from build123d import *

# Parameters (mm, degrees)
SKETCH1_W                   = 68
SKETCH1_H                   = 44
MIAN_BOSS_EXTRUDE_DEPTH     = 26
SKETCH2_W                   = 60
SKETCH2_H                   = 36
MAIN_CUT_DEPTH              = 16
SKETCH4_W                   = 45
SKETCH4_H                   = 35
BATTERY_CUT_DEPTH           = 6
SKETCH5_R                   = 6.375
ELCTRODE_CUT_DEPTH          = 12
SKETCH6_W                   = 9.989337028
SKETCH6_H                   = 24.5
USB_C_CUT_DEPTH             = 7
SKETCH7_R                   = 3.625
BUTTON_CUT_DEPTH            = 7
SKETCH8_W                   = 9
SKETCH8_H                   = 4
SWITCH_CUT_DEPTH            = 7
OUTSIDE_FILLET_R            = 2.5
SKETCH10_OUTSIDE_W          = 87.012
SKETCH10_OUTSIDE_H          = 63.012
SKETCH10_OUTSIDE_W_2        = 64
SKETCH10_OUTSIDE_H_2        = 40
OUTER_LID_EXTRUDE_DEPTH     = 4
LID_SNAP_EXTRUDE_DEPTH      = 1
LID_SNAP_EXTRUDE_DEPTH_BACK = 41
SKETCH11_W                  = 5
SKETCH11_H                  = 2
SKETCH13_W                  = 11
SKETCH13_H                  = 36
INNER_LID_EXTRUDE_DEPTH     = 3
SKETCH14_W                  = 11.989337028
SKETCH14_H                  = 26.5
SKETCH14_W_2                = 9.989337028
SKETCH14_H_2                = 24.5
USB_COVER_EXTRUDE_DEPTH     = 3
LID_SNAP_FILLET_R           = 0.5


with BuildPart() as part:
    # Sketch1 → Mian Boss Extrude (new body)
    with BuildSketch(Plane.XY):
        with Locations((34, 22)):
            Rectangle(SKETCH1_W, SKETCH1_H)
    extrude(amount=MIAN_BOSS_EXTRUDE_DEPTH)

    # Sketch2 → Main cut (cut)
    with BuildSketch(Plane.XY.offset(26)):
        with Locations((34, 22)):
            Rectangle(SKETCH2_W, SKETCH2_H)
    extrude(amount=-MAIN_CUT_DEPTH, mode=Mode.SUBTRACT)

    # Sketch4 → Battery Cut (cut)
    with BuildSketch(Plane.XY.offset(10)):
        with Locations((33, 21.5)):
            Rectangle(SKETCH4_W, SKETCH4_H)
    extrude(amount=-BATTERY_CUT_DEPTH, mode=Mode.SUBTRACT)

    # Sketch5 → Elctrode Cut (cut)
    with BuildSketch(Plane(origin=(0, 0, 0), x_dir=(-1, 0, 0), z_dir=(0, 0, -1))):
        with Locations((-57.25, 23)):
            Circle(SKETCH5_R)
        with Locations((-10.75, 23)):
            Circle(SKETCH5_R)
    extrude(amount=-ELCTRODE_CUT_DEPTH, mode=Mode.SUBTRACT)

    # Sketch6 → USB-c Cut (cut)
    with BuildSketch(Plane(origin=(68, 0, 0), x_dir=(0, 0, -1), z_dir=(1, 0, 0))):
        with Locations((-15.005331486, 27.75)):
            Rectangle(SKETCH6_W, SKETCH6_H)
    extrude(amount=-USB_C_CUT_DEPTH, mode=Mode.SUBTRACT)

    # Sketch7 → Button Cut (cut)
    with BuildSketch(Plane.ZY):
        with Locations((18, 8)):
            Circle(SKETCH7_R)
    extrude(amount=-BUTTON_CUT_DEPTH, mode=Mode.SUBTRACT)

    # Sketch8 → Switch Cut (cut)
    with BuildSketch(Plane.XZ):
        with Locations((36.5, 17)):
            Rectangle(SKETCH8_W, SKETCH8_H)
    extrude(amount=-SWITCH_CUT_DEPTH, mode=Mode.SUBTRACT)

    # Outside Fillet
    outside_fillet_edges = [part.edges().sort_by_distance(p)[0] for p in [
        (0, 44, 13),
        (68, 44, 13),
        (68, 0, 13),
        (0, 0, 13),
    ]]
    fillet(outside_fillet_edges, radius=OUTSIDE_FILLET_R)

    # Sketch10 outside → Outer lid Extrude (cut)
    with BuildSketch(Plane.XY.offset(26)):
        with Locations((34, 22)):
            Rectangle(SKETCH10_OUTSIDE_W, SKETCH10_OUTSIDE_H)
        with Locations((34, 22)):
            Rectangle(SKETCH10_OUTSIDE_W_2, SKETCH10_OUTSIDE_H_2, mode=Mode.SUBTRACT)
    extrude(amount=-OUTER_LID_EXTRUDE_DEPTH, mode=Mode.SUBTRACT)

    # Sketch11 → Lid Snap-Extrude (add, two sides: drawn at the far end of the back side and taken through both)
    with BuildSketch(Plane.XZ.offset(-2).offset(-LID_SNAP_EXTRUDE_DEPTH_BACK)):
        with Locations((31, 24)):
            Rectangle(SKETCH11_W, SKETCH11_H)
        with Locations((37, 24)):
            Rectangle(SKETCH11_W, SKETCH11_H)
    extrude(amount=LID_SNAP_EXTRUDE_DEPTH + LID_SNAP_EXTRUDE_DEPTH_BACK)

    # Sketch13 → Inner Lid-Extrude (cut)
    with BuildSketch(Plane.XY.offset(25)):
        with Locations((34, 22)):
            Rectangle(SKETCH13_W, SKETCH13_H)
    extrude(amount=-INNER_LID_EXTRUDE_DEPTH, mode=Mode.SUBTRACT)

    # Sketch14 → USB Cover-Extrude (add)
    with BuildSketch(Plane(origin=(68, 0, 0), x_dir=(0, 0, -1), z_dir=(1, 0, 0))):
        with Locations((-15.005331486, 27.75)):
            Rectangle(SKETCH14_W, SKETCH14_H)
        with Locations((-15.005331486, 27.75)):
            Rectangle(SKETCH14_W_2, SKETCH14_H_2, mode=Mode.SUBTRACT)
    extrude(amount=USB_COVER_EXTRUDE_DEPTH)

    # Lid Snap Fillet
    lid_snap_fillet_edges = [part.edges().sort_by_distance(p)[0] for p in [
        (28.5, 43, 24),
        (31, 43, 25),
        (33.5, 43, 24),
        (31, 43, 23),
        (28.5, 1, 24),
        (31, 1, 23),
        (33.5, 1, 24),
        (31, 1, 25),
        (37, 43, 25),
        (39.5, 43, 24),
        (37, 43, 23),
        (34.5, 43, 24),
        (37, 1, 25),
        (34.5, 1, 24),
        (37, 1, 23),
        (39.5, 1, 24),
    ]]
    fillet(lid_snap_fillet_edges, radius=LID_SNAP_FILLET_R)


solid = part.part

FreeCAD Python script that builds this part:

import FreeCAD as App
import Part
import Sketcher

V = App.Vector


def edges_at(feature, points):
    """Names of the edges that pass closest to the given points."""
    edges = feature.Shape.Edges
    near = lambda p: min(range(len(edges)), key=lambda i: edges[i].distToShape(Part.Vertex(*p))[0])
    return sorted({f"Edge{near(p) + 1}" for p in points})

doc = App.newDocument("Part")
params = doc.addObject("Spreadsheet::Sheet", "Params")
for row, (alias, value) in enumerate([
    ("sketch1_width", "68 mm"),
    ("sketch1_height", "44 mm"),
    ("pad1_length", "26 mm"),
    ("sketch2_width", "60 mm"),
    ("sketch2_height", "36 mm"),
    ("pocket1_length", "16 mm"),
    ("sketch3_width", "45 mm"),
    ("sketch3_height", "35 mm"),
    ("pocket2_length", "6 mm"),
    ("sketch4_diameter", "12.75 mm"),
    ("pocket3_length", "12 mm"),
    ("sketch5_width", "24.5 mm"),
    ("pocket4_length", "7 mm"),
    ("sketch6_diameter", "7.25 mm"),
    ("pocket5_length", "7 mm"),
    ("sketch7_width", "9 mm"),
    ("sketch7_height", "4 mm"),
    ("pocket6_length", "7 mm"),
    ("fillet_radius", "2.5 mm"),
    ("sketch8_width", "64 mm"),
    ("sketch8_height", "40 mm"),
    ("pocket7_length", "4 mm"),
    ("sketch9_width", "5 mm"),
    ("sketch9_height", "2 mm"),
    ("pad2_length", "1 mm"),
    ("pad2_length2", "41 mm"),
    ("sketch10_width", "11 mm"),
    ("sketch10_height", "36 mm"),
    ("pocket8_length", "3 mm"),
    ("sketch11_width", "26.5 mm"),
    ("sketch11_width2", "24.5 mm"),
    ("pad3_length", "3 mm"),
    ("fillet2_radius", "0.5 mm"),
], start=1):
    params.set(f"A{row}", alias)
    params.set(f"B{row}", "=" + value)
    params.setAlias(f"B{row}", alias)

body = doc.addObject("PartDesign::Body", "Body")

# Sketch on XY plane
sketch1 = doc.addObject("Sketcher::SketchObject", "Sketch")
body.addObject(sketch1)
sketch1.AttachmentSupport = (doc.XY_Plane, [""])
sketch1.MapMode = "FlatFace"
sketch1.addGeometry(Part.LineSegment(V(0, 44, 0), V(0, 0, 0)), False)
sketch1.addGeometry(Part.LineSegment(V(0, 0, 0), V(68, 0, 0)), False)
sketch1.addGeometry(Part.LineSegment(V(68, 0, 0), V(68, 44, 0)), False)
sketch1.addGeometry(Part.LineSegment(V(68, 44, 0), V(0, 44, 0)), False)
sketch1.addConstraint(Sketcher.Constraint("Coincident", 0, 2, 1, 1))
sketch1.addConstraint(Sketcher.Constraint("Coincident", 1, 2, 2, 1))
sketch1.addConstraint(Sketcher.Constraint("Coincident", 2, 2, 3, 1))
sketch1.addConstraint(Sketcher.Constraint("Coincident", 3, 2, 0, 1))
sketch1.addConstraint(Sketcher.Constraint("Vertical", 0))
sketch1.addConstraint(Sketcher.Constraint("Horizontal", 1))
sketch1.addConstraint(Sketcher.Constraint("Vertical", 2))
sketch1.addConstraint(Sketcher.Constraint("Horizontal", 3))
sketch1.addConstraint(Sketcher.Constraint("Coincident", 0, 2, -1, 1))
sketch1.addConstraint(Sketcher.Constraint("DistanceX", 1, 1, 1, 2, 68.0))
sketch1.addConstraint(Sketcher.Constraint("DistanceY", 0, 2, 0, 1, 44.0))
sketch1.setExpression("Constraints[9]", "Params.sketch1_width")
sketch1.setExpression("Constraints[10]", "Params.sketch1_height")
pad1 = doc.addObject("PartDesign::Pad", "Pad")
body.addObject(pad1)
pad1.Profile = sketch1
pad1.setExpression("Length", "Params.pad1_length")

# Sketch on XY plane
sketch2 = doc.addObject("Sketcher::SketchObject", "Sketch001")
body.addObject(sketch2)
sketch2.AttachmentSupport = (doc.XY_Plane, [""])
sketch2.MapMode = "FlatFace"
sketch2.AttachmentOffset = App.Placement(V(0, 0, 26), App.Rotation())
sketch2.addGeometry(Part.LineSegment(V(4, 40, 0), V(4, 4, 0)), False)
sketch2.addGeometry(Part.LineSegment(V(4, 4, 0), V(64, 4, 0)), False)
sketch2.addGeometry(Part.LineSegment(V(64, 4, 0), V(64, 40, 0)), False)
sketch2.addGeometry(Part.LineSegment(V(64, 40, 0), V(4, 40, 0)), False)
sketch2.addConstraint(Sketcher.Constraint("Coincident", 0, 2, 1, 1))
sketch2.addConstraint(Sketcher.Constraint("Coincident", 1, 2, 2, 1))
sketch2.addConstraint(Sketcher.Constraint("Coincident", 2, 2, 3, 1))
sketch2.addConstraint(Sketcher.Constraint("Coincident", 3, 2, 0, 1))
sketch2.addConstraint(Sketcher.Constraint("Vertical", 0))
sketch2.addConstraint(Sketcher.Constraint("Horizontal", 1))
sketch2.addConstraint(Sketcher.Constraint("Vertical", 2))
sketch2.addConstraint(Sketcher.Constraint("Horizontal", 3))
sketch2.addConstraint(Sketcher.Constraint("DistanceX", 1, 1, 1, 2, 60.0))
sketch2.addConstraint(Sketcher.Constraint("DistanceY", 0, 2, 0, 1, 36.0))
sketch2.addConstraint(Sketcher.Constraint("DistanceX", -1, 1, 0, 2, 4.0))
sketch2.addConstraint(Sketcher.Constraint("DistanceY", -1, 1, 0, 2, 4.0))
sketch2.setExpression("Constraints[8]", "Params.sketch2_width")
sketch2.setExpression("Constraints[9]", "Params.sketch2_height")
pocket1 = doc.addObject("PartDesign::Pocket", "Pocket")
body.addObject(pocket1)
pocket1.Profile = sketch2
pocket1.setExpression("Length", "Params.pocket1_length")

# Sketch on XY plane
sketch3 = doc.addObject("Sketcher::SketchObject", "Sketch002")
body.addObject(sketch3)
sketch3.AttachmentSupport = (doc.XY_Plane, [""])
sketch3.MapMode = "FlatFace"
sketch3.AttachmentOffset = App.Placement(V(0, 0, 10), App.Rotation())
sketch3.addGeometry(Part.LineSegment(V(10, 39, 0), V(10, 4, 0)), False)
sketch3.addGeometry(Part.LineSegment(V(10, 4, 0), V(56, 4, 0)), False)
sketch3.addGeometry(Part.LineSegment(V(56, 4, 0), V(56, 39, 0)), False)
sketch3.addGeometry(Part.LineSegment(V(56, 39, 0), V(10, 39, 0)), False)
sketch3.addConstraint(Sketcher.Constraint("Coincident", 0, 2, 1, 1))
sketch3.addConstraint(Sketcher.Constraint("Coincident", 1, 2, 2, 1))
sketch3.addConstraint(Sketcher.Constraint("Coincident", 2, 2, 3, 1))
sketch3.addConstraint(Sketcher.Constraint("Coincident", 3, 2, 0, 1))
sketch3.addConstraint(Sketcher.Constraint("Vertical", 0))
sketch3.addConstraint(Sketcher.Constraint("Horizontal", 1))
sketch3.addConstraint(Sketcher.Constraint("Vertical", 2))
sketch3.addConstraint(Sketcher.Constraint("Horizontal", 3))
sketch3.addConstraint(Sketcher.Constraint("DistanceX", 1, 1, 1, 2, 45.0))
sketch3.addConstraint(Sketcher.Constraint("DistanceY", 0, 2, 0, 1, 35.0))
sketch3.addConstraint(Sketcher.Constraint("DistanceY", -1, 1, 0, 2, 4.0))
sketch3.addConstraint(Sketcher.Constraint("DistanceX", -1, 1, 0, 2, 10.5))
sketch3.setExpression("Constraints[8]", "Params.sketch3_width")
sketch3.setExpression("Constraints[9]", "Params.sketch3_height")
pocket2 = doc.addObject("PartDesign::Pocket", "Pocket001")
body.addObject(pocket2)
pocket2.Profile = sketch3
pocket2.setExpression("Length", "Params.pocket2_length")

# Sketch on XY plane
sketch4 = doc.addObject("Sketcher::SketchObject", "Sketch003")
body.addObject(sketch4)
sketch4.AttachmentSupport = (doc.XY_Plane, [""])
sketch4.MapMode = "FlatFace"
sketch4.addGeometry(Part.Circle(V(57, 23, 0), V(0, 0, 1), 6), False)
sketch4.addGeometry(Part.Circle(V(11, 23, 0), V(0, 0, 1), 6), False)
sketch4.addConstraint(Sketcher.Constraint("Equal", 0, 1))
sketch4.addConstraint(Sketcher.Constraint("Horizontal", 0, 3, 1, 3))
sketch4.addConstraint(Sketcher.Constraint("Diameter", 0, 12.75))
sketch4.addConstraint(Sketcher.Constraint("DistanceY", -1, 1, 0, 3, 23.0))
sketch4.addConstraint(Sketcher.Constraint("DistanceX", 1, 3, 0, 3, 46.5))
sketch4.addConstraint(Sketcher.Constraint("DistanceX", -1, 1, 0, 3, 57.25))
sketch4.setExpression("Constraints[2]", "Params.sketch4_diameter")
pocket3 = doc.addObject("PartDesign::Pocket", "Pocket002")
body.addObject(pocket3)
pocket3.Profile = sketch4
pocket3.setExpression("Length", "Params.pocket3_length")
pocket3.Reversed = True

# Sketch on YZ plane
sketch5 = doc.addObject("Sketcher::SketchObject", "Sketch004")
body.addObject(sketch5)
sketch5.AttachmentSupport = (doc.YZ_Plane, [""])
sketch5.MapMode = "FlatFace"
sketch5.AttachmentOffset = App.Placement(V(0, 0, 68), App.Rotation())
sketch5.addGeometry(Part.LineSegment(V(40, 20, 0), V(16, 20, 0)), False)
sketch5.addGeometry(Part.LineSegment(V(16, 20, 0), V(16, 10, 0)), False)
sketch5.addGeometry(Part.LineSegment(V(16, 10, 0), V(40, 10, 0)), False)
sketch5.addGeometry(Part.LineSegment(V(40, 10, 0), V(40, 20, 0)), False)
sketch5.addConstraint(Sketcher.Constraint("Coincident", 0, 2, 1, 1))
sketch5.addConstraint(Sketcher.Constraint("Coincident", 1, 2, 2, 1))
sketch5.addConstraint(Sketcher.Constraint("Coincident", 2, 2, 3, 1))
sketch5.addConstraint(Sketcher.Constraint("Coincident", 3, 2, 0, 1))
sketch5.addConstraint(Sketcher.Constraint("Horizontal", 0))
sketch5.addConstraint(Sketcher.Constraint("Vertical", 1))
sketch5.addConstraint(Sketcher.Constraint("Horizontal", 2))
sketch5.addConstraint(Sketcher.Constraint("Vertical", 3))
sketch5.addConstraint(Sketcher.Constraint("DistanceX", 0, 2, 0, 1, 24.5))
sketch5.addConstraint(Sketcher.Constraint("DistanceY", -1, 1, 0, 2, 20.0))
sketch5.addConstraint(Sketcher.Constraint("DistanceX", -1, 1, 2, 2, 40.0))
sketch5.addConstraint(Sketcher.Constraint("DistanceY", 1, 2, 1, 1, 9.989337))
sketch5.setExpression("Constraints[8]", "Params.sketch5_width")
pocket4 = doc.addObject("PartDesign::Pocket", "Pocket003")
body.addObject(pocket4)
pocket4.Profile = sketch5
pocket4.setExpression("Length", "Params.pocket4_length")

# Sketch on YZ plane
sketch6 = doc.addObject("Sketcher::SketchObject", "Sketch005")
body.addObject(sketch6)
sketch6.AttachmentSupport = (doc.YZ_Plane, [""])
sketch6.MapMode = "FlatFace"
sketch6.addGeometry(Part.Circle(V(8, 18, 0), V(0, 0, 1), 3.6), False)
sketch6.addConstraint(Sketcher.Constraint("Diameter", 0, 7.25))
sketch6.addConstraint(Sketcher.Constraint("DistanceX", -1, 1, 0, 3, 8.0))
sketch6.addConstraint(Sketcher.Constraint("DistanceY", -1, 1, 0, 3, 18.0))
sketch6.setExpression("Constraints[0]", "Params.sketch6_diameter")
pocket5 = doc.addObject("PartDesign::Pocket", "Pocket004")
body.addObject(pocket5)
pocket5.Profile = sketch6
pocket5.setExpression("Length", "Params.pocket5_length")
pocket5.Reversed = True

# Sketch on XZ plane
sketch7 = doc.addObject("Sketcher::SketchObject", "Sketch006")
body.addObject(sketch7)
sketch7.AttachmentSupport = (doc.XZ_Plane, [""])
sketch7.MapMode = "FlatFace"
sketch7.addGeometry(Part.LineSegment(V(32, 19, 0), V(32, 15, 0)), False)
sketch7.addGeometry(Part.LineSegment(V(32, 15, 0), V(41, 15, 0)), False)
sketch7.addGeometry(Part.LineSegment(V(41, 15, 0), V(41, 19, 0)), False)
sketch7.addGeometry(Part.LineSegment(V(41, 19, 0), V(32, 19, 0)), False)
sketch7.addConstraint(Sketcher.Constraint("Coincident", 0, 2, 1, 1))
sketch7.addConstraint(Sketcher.Constraint("Coincident", 1, 2, 2, 1))
sketch7.addConstraint(Sketcher.Constraint("Coincident", 2, 2, 3, 1))
sketch7.addConstraint(Sketcher.Constraint("Coincident", 3, 2, 0, 1))
sketch7.addConstraint(Sketcher.Constraint("Vertical", 0))
sketch7.addConstraint(Sketcher.Constraint("Horizontal", 1))
sketch7.addConstraint(Sketcher.Constraint("Vertical", 2))
sketch7.addConstraint(Sketcher.Constraint("Horizontal", 3))
sketch7.addConstraint(Sketcher.Constraint("DistanceX", 1, 1, 1, 2, 9.0))
sketch7.addConstraint(Sketcher.Constraint("DistanceY", 0, 2, 0, 1, 4.0))
sketch7.addConstraint(Sketcher.Constraint("DistanceX", -1, 1, 0, 2, 32.0))
sketch7.addConstraint(Sketcher.Constraint("DistanceY", -1, 1, 0, 2, 15.0))
sketch7.setExpression("Constraints[8]", "Params.sketch7_width")
sketch7.setExpression("Constraints[9]", "Params.sketch7_height")
pocket6 = doc.addObject("PartDesign::Pocket", "Pocket005")
body.addObject(pocket6)
pocket6.Profile = sketch7
pocket6.setExpression("Length", "Params.pocket6_length")
doc.recompute()

fillet = doc.addObject("PartDesign::Fillet", "Fillet")
body.addObject(fillet)
fillet.Base = (pocket6, edges_at(pocket6, [
    (0, 44, 13),
    (68, 44, 13),
    (68, 0, 13),
    (0, 0, 13),
]))
fillet.setExpression("Radius", "Params.fillet_radius")

# Sketch on XY plane
sketch8 = doc.addObject("Sketcher::SketchObject", "Sketch007")
body.addObject(sketch8)
sketch8.AttachmentSupport = (doc.XY_Plane, [""])
sketch8.MapMode = "FlatFace"
sketch8.AttachmentOffset = App.Placement(V(0, 0, 26), App.Rotation())
sketch8.addGeometry(Part.LineSegment(V(-10, 54, 0), V(-10, -10, 0)), False)
sketch8.addGeometry(Part.LineSegment(V(-10, -10, 0), V(78, -10, 0)), False)
sketch8.addGeometry(Part.LineSegment(V(78, -10, 0), V(78, 54, 0)), False)
sketch8.addGeometry(Part.LineSegment(V(78, 54, 0), V(-10, 54, 0)), False)
sketch8.addGeometry(Part.LineSegment(V(66, 2, 0), V(2, 2, 0)), False)
sketch8.addGeometry(Part.LineSegment(V(2, 2, 0), V(2, 42, 0)), False)
sketch8.addGeometry(Part.LineSegment(V(2, 42, 0), V(66, 42, 0)), False)
sketch8.addGeometry(Part.LineSegment(V(66, 42, 0), V(66, 2, 0)), False)
sketch8.addConstraint(Sketcher.Constraint("Coincident", 0, 2, 1, 1))
sketch8.addConstraint(Sketcher.Constraint("Coincident", 1, 2, 2, 1))
sketch8.addConstraint(Sketcher.Constraint("Coincident", 2, 2, 3, 1))
sketch8.addConstraint(Sketcher.Constraint("Coincident", 3, 2, 0, 1))
sketch8.addConstraint(Sketcher.Constraint("Coincident", 4, 2, 5, 1))
sketch8.addConstraint(Sketcher.Constraint("Coincident", 5, 2, 6, 1))
sketch8.addConstraint(Sketcher.Constraint("Coincident", 6, 2, 7, 1))
sketch8.addConstraint(Sketcher.Constraint("Coincident", 7, 2, 4, 1))
sketch8.addConstraint(Sketcher.Constraint("Vertical", 0))
sketch8.addConstraint(Sketcher.Constraint("Horizontal", 1))
sketch8.addConstraint(Sketcher.Constraint("Vertical", 2))
sketch8.addConstraint(Sketcher.Constraint("Horizontal", 3))
sketch8.addConstraint(Sketcher.Constraint("Horizontal", 4))
sketch8.addConstraint(Sketcher.Constraint("Vertical", 5))
sketch8.addConstraint(Sketcher.Constraint("Horizontal", 6))
sketch8.addConstraint(Sketcher.Constraint("Vertical", 7))
sketch8.addConstraint(Sketcher.Constraint("DistanceX", 4, 2, 4, 1, 64.0))
sketch8.addConstraint(Sketcher.Constraint("DistanceY", 5, 1, 5, 2, 40.0))
sketch8.addConstraint(Sketcher.Constraint("DistanceX", -1, 1, 4, 2, 2.0))
sketch8.addConstraint(Sketcher.Constraint("DistanceY", -1, 1, 4, 2, 2.0))
sketch8.addConstraint(Sketcher.Constraint("DistanceX", 1, 1, 1, 2, 87.012))
sketch8.addConstraint(Sketcher.Constraint("DistanceY", 0, 2, 0, 1, 63.012))
sketch8.addConstraint(Sketcher.Constraint("DistanceX", 0, 2, -1, 1, 9.506))
sketch8.addConstraint(Sketcher.Constraint("DistanceY", 0, 2, -1, 1, 9.506))
sketch8.setExpression("Constraints[16]", "Params.sketch8_width")
sketch8.setExpression("Constraints[17]", "Params.sketch8_height")
pocket7 = doc.addObject("PartDesign::Pocket", "Pocket006")
body.addObject(pocket7)
pocket7.Profile = sketch8
pocket7.setExpression("Length", "Params.pocket7_length")

# Sketch on XZ plane
sketch9 = doc.addObject("Sketcher::SketchObject", "Sketch008")
body.addObject(sketch9)
sketch9.AttachmentSupport = (doc.XZ_Plane, [""])
sketch9.MapMode = "FlatFace"
sketch9.AttachmentOffset = App.Placement(V(0, 0, -2), App.Rotation())
sketch9.addGeometry(Part.LineSegment(V(28.5, 25, 0), V(28.5, 23, 0)), False)
sketch9.addGeometry(Part.LineSegment(V(28.5, 23, 0), V(33.5, 23, 0)), False)
sketch9.addGeometry(Part.LineSegment(V(33.5, 23, 0), V(33.5, 25, 0)), False)
sketch9.addGeometry(Part.LineSegment(V(33.5, 25, 0), V(28.5, 25, 0)), False)
sketch9.addGeometry(Part.LineSegment(V(34.5, 25, 0), V(34.5, 23, 0)), False)
sketch9.addGeometry(Part.LineSegment(V(34.5, 23, 0), V(39.5, 23, 0)), False)
sketch9.addGeometry(Part.LineSegment(V(39.5, 23, 0), V(39.5, 25, 0)), False)
sketch9.addGeometry(Part.LineSegment(V(39.5, 25, 0), V(34.5, 25, 0)), False)
sketch9.addConstraint(Sketcher.Constraint("Coincident", 0, 2, 1, 1))
sketch9.addConstraint(Sketcher.Constraint("Coincident", 1, 2, 2, 1))
sketch9.addConstraint(Sketcher.Constraint("Coincident", 2, 2, 3, 1))
sketch9.addConstraint(Sketcher.Constraint("Coincident", 3, 2, 0, 1))
sketch9.addConstraint(Sketcher.Constraint("Coincident", 4, 2, 5, 1))
sketch9.addConstraint(Sketcher.Constraint("Coincident", 5, 2, 6, 1))
sketch9.addConstraint(Sketcher.Constraint("Coincident", 6, 2, 7, 1))
sketch9.addConstraint(Sketcher.Constraint("Coincident", 7, 2, 4, 1))
sketch9.addConstraint(Sketcher.Constraint("Vertical", 0))
sketch9.addConstraint(Sketcher.Constraint("Horizontal", 1))
sketch9.addConstraint(Sketcher.Constraint("Vertical", 2))
sketch9.addConstraint(Sketcher.Constraint("Horizontal", 3))
sketch9.addConstraint(Sketcher.Constraint("Vertical", 4))
sketch9.addConstraint(Sketcher.Constraint("Horizontal", 5))
sketch9.addConstraint(Sketcher.Constraint("Vertical", 6))
sketch9.addConstraint(Sketcher.Constraint("Horizontal", 7))
sketch9.addConstraint(Sketcher.Constraint("Horizontal", 1, 2, 4, 2))
sketch9.addConstraint(Sketcher.Constraint("Horizontal", 3, 2, 6, 2))
sketch9.addConstraint(Sketcher.Constraint("Equal", 3, 5))
sketch9.addConstraint(Sketcher.Constraint("DistanceX", 1, 1, 1, 2, 5.0))
sketch9.addConstraint(Sketcher.Constraint("DistanceY", 0, 2, 0, 1, 2.0))
sketch9.addConstraint(Sketcher.Constraint("DistanceY", -1, 1, 0, 2, 23.0))
sketch9.addConstraint(Sketcher.Constraint("DistanceX", 1, 2, 4, 2, 1.0))
sketch9.addConstraint(Sketcher.Constraint("DistanceX", -1, 1, 0, 2, 28.5))
sketch9.setExpression("Constraints[19]", "Params.sketch9_width")
sketch9.setExpression("Constraints[20]", "Params.sketch9_height")
pad2 = doc.addObject("PartDesign::Pad", "Pad001")
body.addObject(pad2)
pad2.Profile = sketch9
pad2.Type = "TwoLengths"
pad2.setExpression("Length", "Params.pad2_length")
pad2.setExpression("Length2", "Params.pad2_length2")

# Sketch on XY plane
sketch10 = doc.addObject("Sketcher::SketchObject", "Sketch009")
body.addObject(sketch10)
sketch10.AttachmentSupport = (doc.XY_Plane, [""])
sketch10.MapMode = "FlatFace"
sketch10.AttachmentOffset = App.Placement(V(0, 0, 25), App.Rotation())
sketch10.addGeometry(Part.LineSegment(V(28, 40, 0), V(28, 4, 0)), False)
sketch10.addGeometry(Part.LineSegment(V(28, 4, 0), V(40, 4, 0)), False)
sketch10.addGeometry(Part.LineSegment(V(40, 4, 0), V(40, 40, 0)), False)
sketch10.addGeometry(Part.LineSegment(V(40, 40, 0), V(28, 40, 0)), False)
sketch10.addConstraint(Sketcher.Constraint("Coincident", 0, 2, 1, 1))
sketch10.addConstraint(Sketcher.Constraint("Coincident", 1, 2, 2, 1))
sketch10.addConstraint(Sketcher.Constraint("Coincident", 2, 2, 3, 1))
sketch10.addConstraint(Sketcher.Constraint("Coincident", 3, 2, 0, 1))
sketch10.addConstraint(Sketcher.Constraint("Vertical", 0))
sketch10.addConstraint(Sketcher.Constraint("Horizontal", 1))
sketch10.addConstraint(Sketcher.Constraint("Vertical", 2))
sketch10.addConstraint(Sketcher.Constraint("Horizontal", 3))
sketch10.addConstraint(Sketcher.Constraint("DistanceX", 1, 1, 1, 2, 11.0))
sketch10.addConstraint(Sketcher.Constraint("DistanceY", 0, 2, 0, 1, 36.0))
sketch10.addConstraint(Sketcher.Constraint("DistanceY", -1, 1, 0, 2, 4.0))
sketch10.addConstraint(Sketcher.Constraint("DistanceX", -1, 1, 0, 2, 28.5))
sketch10.setExpression("Constraints[8]", "Params.sketch10_width")
sketch10.setExpression("Constraints[9]", "Params.sketch10_height")
pocket8 = doc.addObject("PartDesign::Pocket", "Pocket007")
body.addObject(pocket8)
pocket8.Profile = sketch10
pocket8.setExpression("Length", "Params.pocket8_length")

# Sketch on YZ plane
sketch11 = doc.addObject("Sketcher::SketchObject", "Sketch010")
body.addObject(sketch11)
sketch11.AttachmentSupport = (doc.YZ_Plane, [""])
sketch11.MapMode = "FlatFace"
sketch11.AttachmentOffset = App.Placement(V(0, 0, 68), App.Rotation())
sketch11.addGeometry(Part.LineSegment(V(41, 21, 0), V(14, 21, 0)), False)
sketch11.addGeometry(Part.LineSegment(V(14, 21, 0), V(14, 9, 0)), False)
sketch11.addGeometry(Part.LineSegment(V(14, 9, 0), V(41, 9, 0)), False)
sketch11.addGeometry(Part.LineSegment(V(41, 9, 0), V(41, 21, 0)), False)
sketch11.addGeometry(Part.LineSegment(V(16, 10, 0), V(16, 20, 0)), False)
sketch11.addGeometry(Part.LineSegment(V(16, 20, 0), V(40, 20, 0)), False)
sketch11.addGeometry(Part.LineSegment(V(40, 20, 0), V(40, 10, 0)), False)
sketch11.addGeometry(Part.LineSegment(V(40, 10, 0), V(16, 10, 0)), False)
sketch11.addConstraint(Sketcher.Constraint("Coincident", 0, 2, 1, 1))
sketch11.addConstraint(Sketcher.Constraint("Coincident", 1, 2, 2, 1))
sketch11.addConstraint(Sketcher.Constraint("Coincident", 2, 2, 3, 1))
sketch11.addConstraint(Sketcher.Constraint("Coincident", 3, 2, 0, 1))
sketch11.addConstraint(Sketcher.Constraint("Coincident", 4, 2, 5, 1))
sketch11.addConstraint(Sketcher.Constraint("Coincident", 5, 2, 6, 1))
sketch11.addConstraint(Sketcher.Constraint("Coincident", 6, 2, 7, 1))
sketch11.addConstraint(Sketcher.Constraint("Coincident", 7, 2, 4, 1))
sketch11.addConstraint(Sketcher.Constraint("Horizontal", 0))
sketch11.addConstraint(Sketcher.Constraint("Vertical", 1))
sketch11.addConstraint(Sketcher.Constraint("Horizontal", 2))
sketch11.addConstraint(Sketcher.Constraint("Vertical", 3))
sketch11.addConstraint(Sketcher.Constraint("Vertical", 4))
sketch11.addConstraint(Sketcher.Constraint("Horizontal", 5))
sketch11.addConstraint(Sketcher.Constraint("Vertical", 6))
sketch11.addConstraint(Sketcher.Constraint("Horizontal", 7))
sketch11.addConstraint(Sketcher.Constraint("DistanceX", 0, 2, 0, 1, 26.5))
sketch11.addConstraint(Sketcher.Constraint("DistanceX", 5, 1, 5, 2, 24.5))
sketch11.addConstraint(Sketcher.Constraint("DistanceY", -1, 1, 0, 2, 21.0))
sketch11.addConstraint(Sketcher.Constraint("DistanceX", -1, 1, 2, 2, 41.0))
sketch11.addConstraint(Sketcher.Constraint("DistanceY", -1, 1, 4, 2, 20.0))
sketch11.addConstraint(Sketcher.Constraint("DistanceX", -1, 1, 5, 2, 40.0))
sketch11.addConstraint(Sketcher.Constraint("DistanceY", 2, 2, 6, 2, 1.0))
sketch11.addConstraint(Sketcher.Constraint("DistanceY", 1, 2, 1, 1, 11.989337))
sketch11.setExpression("Constraints[16]", "Params.sketch11_width")
sketch11.setExpression("Constraints[17]", "Params.sketch11_width2")
pad3 = doc.addObject("PartDesign::Pad", "Pad002")
body.addObject(pad3)
pad3.Profile = sketch11
pad3.setExpression("Length", "Params.pad3_length")
doc.recompute()

fillet2 = doc.addObject("PartDesign::Fillet", "Fillet001")
body.addObject(fillet2)
fillet2.Base = (pad3, edges_at(pad3, [
    (28.5, 43, 24),
    (31, 43, 25),
    (33.5, 43, 24),
    (31, 43, 23),
    (28.5, 1, 24),
    (31, 1, 23),
    (33.5, 1, 24),
    (31, 1, 25),
    (37, 43, 25),
    (39.5, 43, 24),
    (37, 43, 23),
    (34.5, 43, 24),
    (37, 1, 25),
    (34.5, 1, 24),
    (37, 1, 23),
    (39.5, 1, 24),
]))
fillet2.setExpression("Radius", "Params.fillet2_radius")

doc.recompute()
